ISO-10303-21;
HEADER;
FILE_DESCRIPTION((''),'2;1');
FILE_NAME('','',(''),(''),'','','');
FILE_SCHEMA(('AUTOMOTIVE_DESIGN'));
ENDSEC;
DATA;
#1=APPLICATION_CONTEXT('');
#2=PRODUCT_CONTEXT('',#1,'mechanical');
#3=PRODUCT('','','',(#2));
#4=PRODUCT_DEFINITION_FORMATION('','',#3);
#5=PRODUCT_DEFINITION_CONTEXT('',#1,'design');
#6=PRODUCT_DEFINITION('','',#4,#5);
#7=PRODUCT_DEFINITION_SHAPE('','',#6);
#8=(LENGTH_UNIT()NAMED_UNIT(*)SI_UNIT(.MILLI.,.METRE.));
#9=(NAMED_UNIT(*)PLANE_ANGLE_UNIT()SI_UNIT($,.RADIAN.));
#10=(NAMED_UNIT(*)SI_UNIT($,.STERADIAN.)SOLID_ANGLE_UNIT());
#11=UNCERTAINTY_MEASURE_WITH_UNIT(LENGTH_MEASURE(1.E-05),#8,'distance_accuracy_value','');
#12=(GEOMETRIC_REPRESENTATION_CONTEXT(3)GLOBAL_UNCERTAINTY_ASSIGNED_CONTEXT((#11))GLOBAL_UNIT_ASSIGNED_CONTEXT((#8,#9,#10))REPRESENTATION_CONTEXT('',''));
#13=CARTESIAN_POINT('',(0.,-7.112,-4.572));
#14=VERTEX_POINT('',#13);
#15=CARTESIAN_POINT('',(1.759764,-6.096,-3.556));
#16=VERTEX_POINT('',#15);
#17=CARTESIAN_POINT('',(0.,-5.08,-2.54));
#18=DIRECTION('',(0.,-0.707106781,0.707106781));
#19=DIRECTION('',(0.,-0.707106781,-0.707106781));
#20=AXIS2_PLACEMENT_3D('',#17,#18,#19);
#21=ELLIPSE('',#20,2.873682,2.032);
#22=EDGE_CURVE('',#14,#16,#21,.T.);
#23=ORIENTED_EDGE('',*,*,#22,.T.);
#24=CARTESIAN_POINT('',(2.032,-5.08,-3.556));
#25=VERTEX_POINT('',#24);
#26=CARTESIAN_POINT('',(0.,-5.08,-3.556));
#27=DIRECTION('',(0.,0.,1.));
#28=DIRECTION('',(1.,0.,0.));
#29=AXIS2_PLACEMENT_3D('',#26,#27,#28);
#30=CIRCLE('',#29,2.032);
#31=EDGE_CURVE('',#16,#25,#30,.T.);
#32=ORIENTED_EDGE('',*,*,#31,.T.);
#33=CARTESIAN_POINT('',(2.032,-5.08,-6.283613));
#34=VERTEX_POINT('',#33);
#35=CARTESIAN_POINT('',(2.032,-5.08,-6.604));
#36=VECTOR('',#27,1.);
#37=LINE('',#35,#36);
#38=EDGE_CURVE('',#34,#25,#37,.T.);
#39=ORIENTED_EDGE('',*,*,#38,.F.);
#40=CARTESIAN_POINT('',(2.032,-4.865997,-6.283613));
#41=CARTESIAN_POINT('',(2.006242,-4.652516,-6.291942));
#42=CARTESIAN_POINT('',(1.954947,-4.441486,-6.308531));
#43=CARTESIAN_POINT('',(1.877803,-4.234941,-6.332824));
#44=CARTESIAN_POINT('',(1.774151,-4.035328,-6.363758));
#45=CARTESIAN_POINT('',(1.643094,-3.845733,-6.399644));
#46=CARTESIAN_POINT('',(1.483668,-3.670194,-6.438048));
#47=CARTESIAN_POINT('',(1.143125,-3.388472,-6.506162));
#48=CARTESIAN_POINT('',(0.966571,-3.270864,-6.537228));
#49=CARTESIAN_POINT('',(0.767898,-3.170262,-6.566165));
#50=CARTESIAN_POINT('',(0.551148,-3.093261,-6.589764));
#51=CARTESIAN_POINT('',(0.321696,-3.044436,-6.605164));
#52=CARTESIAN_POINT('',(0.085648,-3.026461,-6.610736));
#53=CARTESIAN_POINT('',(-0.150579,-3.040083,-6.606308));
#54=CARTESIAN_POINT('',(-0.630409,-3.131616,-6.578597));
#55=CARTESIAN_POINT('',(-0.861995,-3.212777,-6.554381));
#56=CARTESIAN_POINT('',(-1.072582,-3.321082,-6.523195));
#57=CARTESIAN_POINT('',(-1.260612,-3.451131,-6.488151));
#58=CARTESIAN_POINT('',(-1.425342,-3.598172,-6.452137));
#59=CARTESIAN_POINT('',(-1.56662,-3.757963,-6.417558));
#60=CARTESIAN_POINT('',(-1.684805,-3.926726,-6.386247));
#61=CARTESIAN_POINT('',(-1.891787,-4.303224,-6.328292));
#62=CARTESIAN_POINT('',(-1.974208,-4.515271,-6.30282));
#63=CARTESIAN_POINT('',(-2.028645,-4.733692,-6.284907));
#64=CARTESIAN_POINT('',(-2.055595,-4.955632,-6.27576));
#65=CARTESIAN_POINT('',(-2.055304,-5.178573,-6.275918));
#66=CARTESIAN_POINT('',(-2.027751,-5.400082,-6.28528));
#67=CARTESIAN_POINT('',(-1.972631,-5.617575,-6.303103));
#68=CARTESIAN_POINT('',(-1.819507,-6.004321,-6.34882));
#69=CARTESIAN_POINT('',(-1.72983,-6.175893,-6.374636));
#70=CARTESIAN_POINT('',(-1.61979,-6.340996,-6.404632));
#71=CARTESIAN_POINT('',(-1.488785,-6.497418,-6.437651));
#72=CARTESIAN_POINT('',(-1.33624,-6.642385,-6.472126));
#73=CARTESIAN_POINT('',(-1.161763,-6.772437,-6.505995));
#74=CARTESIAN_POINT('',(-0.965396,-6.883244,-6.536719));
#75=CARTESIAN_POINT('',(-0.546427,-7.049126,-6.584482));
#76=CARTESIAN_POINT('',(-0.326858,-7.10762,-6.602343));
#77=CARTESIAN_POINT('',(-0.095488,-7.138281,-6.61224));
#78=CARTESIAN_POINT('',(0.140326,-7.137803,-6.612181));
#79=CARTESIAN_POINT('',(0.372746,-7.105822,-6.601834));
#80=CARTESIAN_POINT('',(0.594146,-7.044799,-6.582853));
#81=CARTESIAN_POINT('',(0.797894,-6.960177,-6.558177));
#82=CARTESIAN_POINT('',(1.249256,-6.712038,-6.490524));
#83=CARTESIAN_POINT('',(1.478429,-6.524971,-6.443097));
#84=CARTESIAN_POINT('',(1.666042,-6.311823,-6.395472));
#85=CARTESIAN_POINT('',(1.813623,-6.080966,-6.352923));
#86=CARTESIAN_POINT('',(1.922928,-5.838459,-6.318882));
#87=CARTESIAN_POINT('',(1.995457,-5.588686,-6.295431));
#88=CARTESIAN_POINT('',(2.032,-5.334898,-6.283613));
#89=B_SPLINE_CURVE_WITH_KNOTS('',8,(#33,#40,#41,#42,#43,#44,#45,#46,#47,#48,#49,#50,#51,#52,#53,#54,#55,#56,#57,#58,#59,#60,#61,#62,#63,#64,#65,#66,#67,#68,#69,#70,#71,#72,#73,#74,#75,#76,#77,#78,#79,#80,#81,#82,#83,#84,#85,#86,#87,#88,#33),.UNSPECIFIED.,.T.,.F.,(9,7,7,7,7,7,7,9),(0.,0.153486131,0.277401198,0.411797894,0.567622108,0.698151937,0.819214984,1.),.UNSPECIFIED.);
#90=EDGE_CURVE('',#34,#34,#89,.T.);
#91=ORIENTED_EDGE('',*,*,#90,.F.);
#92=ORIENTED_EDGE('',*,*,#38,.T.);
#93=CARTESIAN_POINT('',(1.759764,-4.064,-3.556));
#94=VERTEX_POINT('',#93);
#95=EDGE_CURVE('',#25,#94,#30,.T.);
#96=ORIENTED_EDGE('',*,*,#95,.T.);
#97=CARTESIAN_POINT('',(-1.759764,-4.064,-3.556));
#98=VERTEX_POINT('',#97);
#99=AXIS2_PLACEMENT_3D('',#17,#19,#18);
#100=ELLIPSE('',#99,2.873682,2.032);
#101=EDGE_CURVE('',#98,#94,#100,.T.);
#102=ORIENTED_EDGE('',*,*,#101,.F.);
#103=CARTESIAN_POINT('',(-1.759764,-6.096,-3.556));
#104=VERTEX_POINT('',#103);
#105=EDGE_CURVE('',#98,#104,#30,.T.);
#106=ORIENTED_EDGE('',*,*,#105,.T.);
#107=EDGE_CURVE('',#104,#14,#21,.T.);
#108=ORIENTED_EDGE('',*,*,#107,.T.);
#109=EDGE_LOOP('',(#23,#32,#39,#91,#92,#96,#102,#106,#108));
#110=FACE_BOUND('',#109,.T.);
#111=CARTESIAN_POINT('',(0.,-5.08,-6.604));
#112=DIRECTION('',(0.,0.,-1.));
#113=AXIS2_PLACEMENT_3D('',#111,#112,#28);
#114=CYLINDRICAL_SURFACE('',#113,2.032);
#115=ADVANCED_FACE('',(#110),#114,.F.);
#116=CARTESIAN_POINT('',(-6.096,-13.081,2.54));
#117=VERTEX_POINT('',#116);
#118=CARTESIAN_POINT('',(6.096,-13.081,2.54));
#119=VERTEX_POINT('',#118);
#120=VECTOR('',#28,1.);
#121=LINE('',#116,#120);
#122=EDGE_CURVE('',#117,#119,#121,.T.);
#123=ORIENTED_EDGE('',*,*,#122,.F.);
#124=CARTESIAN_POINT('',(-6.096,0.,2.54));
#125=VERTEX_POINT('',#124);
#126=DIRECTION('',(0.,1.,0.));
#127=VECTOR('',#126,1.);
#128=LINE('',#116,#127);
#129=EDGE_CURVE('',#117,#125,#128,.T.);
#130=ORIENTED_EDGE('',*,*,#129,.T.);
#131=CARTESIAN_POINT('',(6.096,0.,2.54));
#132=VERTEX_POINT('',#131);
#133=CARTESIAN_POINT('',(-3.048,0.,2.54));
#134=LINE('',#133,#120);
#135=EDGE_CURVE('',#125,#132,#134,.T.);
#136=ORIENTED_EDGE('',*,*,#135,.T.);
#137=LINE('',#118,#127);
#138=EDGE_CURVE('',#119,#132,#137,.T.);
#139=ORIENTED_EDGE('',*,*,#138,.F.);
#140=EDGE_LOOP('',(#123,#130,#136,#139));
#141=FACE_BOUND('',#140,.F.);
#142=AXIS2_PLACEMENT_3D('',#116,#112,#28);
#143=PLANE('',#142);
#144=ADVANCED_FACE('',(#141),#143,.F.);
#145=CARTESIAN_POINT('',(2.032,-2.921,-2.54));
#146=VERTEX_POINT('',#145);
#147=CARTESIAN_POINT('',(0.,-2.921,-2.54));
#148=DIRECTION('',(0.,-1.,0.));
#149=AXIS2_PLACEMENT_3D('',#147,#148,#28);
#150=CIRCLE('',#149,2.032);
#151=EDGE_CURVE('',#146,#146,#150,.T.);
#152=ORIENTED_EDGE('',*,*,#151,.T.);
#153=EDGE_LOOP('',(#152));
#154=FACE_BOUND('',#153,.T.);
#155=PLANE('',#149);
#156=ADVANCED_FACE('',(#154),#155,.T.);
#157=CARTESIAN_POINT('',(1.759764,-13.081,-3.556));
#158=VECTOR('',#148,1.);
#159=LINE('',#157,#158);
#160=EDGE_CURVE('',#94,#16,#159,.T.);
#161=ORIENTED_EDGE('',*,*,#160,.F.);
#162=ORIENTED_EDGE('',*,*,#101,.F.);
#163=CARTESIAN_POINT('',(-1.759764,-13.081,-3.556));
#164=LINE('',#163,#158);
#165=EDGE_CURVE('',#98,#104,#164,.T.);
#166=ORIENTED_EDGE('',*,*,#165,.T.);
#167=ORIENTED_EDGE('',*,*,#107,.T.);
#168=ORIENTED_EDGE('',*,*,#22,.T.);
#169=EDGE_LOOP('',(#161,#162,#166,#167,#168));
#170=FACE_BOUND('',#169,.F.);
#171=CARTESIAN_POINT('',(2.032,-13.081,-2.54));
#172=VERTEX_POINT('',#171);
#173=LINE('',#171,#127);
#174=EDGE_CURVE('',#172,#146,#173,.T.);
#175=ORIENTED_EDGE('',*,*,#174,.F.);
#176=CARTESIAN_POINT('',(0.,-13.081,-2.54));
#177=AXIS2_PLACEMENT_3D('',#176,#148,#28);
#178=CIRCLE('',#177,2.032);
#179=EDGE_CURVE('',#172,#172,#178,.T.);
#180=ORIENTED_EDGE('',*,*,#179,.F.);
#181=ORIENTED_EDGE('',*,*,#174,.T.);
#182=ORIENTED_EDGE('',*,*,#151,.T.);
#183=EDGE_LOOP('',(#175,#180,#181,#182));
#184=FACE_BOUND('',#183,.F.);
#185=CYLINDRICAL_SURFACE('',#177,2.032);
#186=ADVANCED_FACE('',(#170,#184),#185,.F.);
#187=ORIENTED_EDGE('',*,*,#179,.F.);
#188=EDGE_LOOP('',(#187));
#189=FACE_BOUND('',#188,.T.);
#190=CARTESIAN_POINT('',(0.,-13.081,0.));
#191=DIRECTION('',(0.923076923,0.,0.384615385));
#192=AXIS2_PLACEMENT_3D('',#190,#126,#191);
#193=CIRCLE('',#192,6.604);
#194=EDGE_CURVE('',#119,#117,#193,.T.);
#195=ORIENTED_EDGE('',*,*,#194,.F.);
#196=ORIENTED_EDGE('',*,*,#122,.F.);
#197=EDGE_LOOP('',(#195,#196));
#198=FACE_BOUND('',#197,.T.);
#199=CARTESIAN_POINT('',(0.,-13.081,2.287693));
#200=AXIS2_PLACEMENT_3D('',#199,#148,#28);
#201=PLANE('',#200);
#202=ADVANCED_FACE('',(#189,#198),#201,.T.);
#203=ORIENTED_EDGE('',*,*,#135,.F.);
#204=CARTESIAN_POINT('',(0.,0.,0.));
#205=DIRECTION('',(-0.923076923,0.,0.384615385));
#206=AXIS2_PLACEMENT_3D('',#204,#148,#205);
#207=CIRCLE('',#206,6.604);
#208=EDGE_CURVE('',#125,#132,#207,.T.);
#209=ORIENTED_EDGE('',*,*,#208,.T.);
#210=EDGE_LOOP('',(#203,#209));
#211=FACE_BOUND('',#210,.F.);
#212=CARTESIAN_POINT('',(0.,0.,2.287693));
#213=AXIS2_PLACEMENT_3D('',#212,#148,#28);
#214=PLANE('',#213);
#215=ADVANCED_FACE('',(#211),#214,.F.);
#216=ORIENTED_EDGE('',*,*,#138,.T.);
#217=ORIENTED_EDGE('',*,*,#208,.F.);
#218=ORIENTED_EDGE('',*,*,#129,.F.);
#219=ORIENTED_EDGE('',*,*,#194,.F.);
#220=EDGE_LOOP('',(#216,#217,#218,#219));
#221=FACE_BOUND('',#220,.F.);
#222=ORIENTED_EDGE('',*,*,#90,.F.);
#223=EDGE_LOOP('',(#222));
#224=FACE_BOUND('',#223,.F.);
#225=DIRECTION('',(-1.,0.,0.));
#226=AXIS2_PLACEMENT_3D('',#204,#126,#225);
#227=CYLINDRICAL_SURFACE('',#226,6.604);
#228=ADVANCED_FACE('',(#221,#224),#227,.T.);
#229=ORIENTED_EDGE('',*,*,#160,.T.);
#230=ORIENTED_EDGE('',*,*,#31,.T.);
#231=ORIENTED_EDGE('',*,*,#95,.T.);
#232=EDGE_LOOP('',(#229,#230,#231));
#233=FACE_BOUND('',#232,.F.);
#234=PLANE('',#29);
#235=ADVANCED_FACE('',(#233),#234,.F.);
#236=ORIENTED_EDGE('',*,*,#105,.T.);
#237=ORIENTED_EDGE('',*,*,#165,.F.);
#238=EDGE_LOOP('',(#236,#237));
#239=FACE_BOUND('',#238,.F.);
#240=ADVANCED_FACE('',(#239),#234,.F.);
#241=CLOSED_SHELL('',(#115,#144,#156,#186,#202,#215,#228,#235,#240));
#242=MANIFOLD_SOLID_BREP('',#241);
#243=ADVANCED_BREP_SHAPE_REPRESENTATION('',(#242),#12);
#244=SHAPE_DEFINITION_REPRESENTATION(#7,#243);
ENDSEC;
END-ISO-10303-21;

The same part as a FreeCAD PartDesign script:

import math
import FreeCAD as App
import Part
import Sketcher
from FreeCAD import Vector
Q = App.Units.Quantity

doc = App.newDocument("Part")
params = doc.addObject("Spreadsheet::Sheet", "Params")
for row, (alias, value) in enumerate([
    ("sketch1_diameter", "0.52 in"),
    ("pad1_length", "0.515 in"),
    ("sketch2_diameter", "0.16 in"),
    ("pocket1_length", "0.4 in"),
    ("sketch3_radius", "0.26 in"),
    ("sketch3_width", "0.48 in"),
    ("sketch4_diameter", "0.16 in"),
    ("pocket3_length", "0.12 in"),
], start=1):
    params.set(f"A{row}", alias)
    params.set(f"B{row}", "=" + value)
    params.setAlias(f"B{row}", alias)

body = doc.addObject("PartDesign::Body", "Body")

sketch1 = body.newObject("Sketcher::SketchObject", "Sketch")
sketch1.AttachmentSupport = (doc.getObject("XZ_Plane"), [""])
sketch1.MapMode = "FlatFace"
sketch1.addGeometry(Part.Circle(Vector(0, 0, 0), Vector(0, 0, 1), 6.604), False)
sketch1.addConstraint(Sketcher.Constraint("Coincident", 0, 3, -1, 1))
sketch1.addConstraint(Sketcher.Constraint("Diameter", 0, Q("0.52 in")))
sketch1.setExpression("Constraints[1]", "Params.sketch1_diameter")
pad1 = body.newObject("PartDesign::Pad", "Pad")
pad1.Profile = sketch1
pad1.setExpression("Length", "Params.pad1_length")

sketch2 = body.newObject("Sketcher::SketchObject", "Sketch001")
sketch2.AttachmentSupport = (doc.getObject("XZ_Plane"), [""])
sketch2.MapMode = "FlatFace"
sketch2.AttachmentOffset = App.Placement(Vector(0, 0, 0.515 * 25.4), App.Rotation())
sketch2.addGeometry(Part.Circle(Vector(0, -2.54, 0), Vector(0, 0, 1), 2.032), False)
sketch2.addConstraint(Sketcher.Constraint("PointOnObject", 0, 3, -2))
sketch2.addConstraint(Sketcher.Constraint("Diameter", 0, Q("0.16 in")))
sketch2.addConstraint(Sketcher.Constraint("DistanceY", 0, 3, -1, 1, Q("0.1 in")))
sketch2.setExpression("Constraints[1]", "Params.sketch2_diameter")
pocket1 = body.newObject("PartDesign::Pocket", "Pocket")
pocket1.Profile = sketch2
pocket1.setExpression("Length", "Params.pocket1_length")

sketch3 = body.newObject("Sketcher::SketchObject", "Sketch002")
sketch3.AttachmentSupport = (doc.getObject("XZ_Plane"), [""])
sketch3.MapMode = "FlatFace"
sketch3.AttachmentOffset = App.Placement(Vector(0, 0, 0.515 * 25.4), App.Rotation())
sketch3.addGeometry(Part.ArcOfCircle(Part.Circle(Vector(0, 0, 0), Vector(0, 0, 1), 6.604), math.radians(22.619865), math.radians(157.380135)), False)
sketch3.addGeometry(Part.LineSegment(Vector(-6.096, 2.54, 0), Vector(6.096, 2.54, 0)), False)
sketch3.addConstraint(Sketcher.Constraint("Coincident", 0, 1, 1, 2))
sketch3.addConstraint(Sketcher.Constraint("Coincident", 1, 1, 0, 2))
sketch3.addConstraint(Sketcher.Constraint("Horizontal", 1))
sketch3.addConstraint(Sketcher.Constraint("Coincident", 0, 3, -1, 1))
sketch3.addConstraint(Sketcher.Constraint("Radius", 0, Q("0.26 in")))
sketch3.addConstraint(Sketcher.Constraint("DistanceX", 1, 1, 1, 2, Q("0.48 in")))
sketch3.setExpression("Constraints[4]", "Params.sketch3_radius")
sketch3.setExpression("Constraints[5]", "Params.sketch3_width")
pocket2 = body.newObject("PartDesign::Pocket", "Pocket001")
pocket2.Profile = sketch3
pocket2.Type = "ThroughAll"

sketch4 = body.newObject("Sketcher::SketchObject", "Sketch003")
sketch4.AttachmentSupport = (doc.getObject("XY_Plane"), [""])
sketch4.MapMode = "FlatFace"
sketch4.AttachmentOffset = App.Placement(Vector(0, 0, -0.26 * 25.4), App.Rotation())
sketch4.addGeometry(Part.Circle(Vector(0, -5.08, 0), Vector(0, 0, 1), 2.032), False)
sketch4.addConstraint(Sketcher.Constraint("PointOnObject", 0, 3, -2))
sketch4.addConstraint(Sketcher.Constraint("Diameter", 0, Q("0.16 in")))
sketch4.addConstraint(Sketcher.Constraint("DistanceY", 0, 3, -1, 1, Q("0.2 in")))
sketch4.setExpression("Constraints[1]", "Params.sketch4_diameter")
pocket3 = body.newObject("PartDesign::Pocket", "Pocket002")
pocket3.Profile = sketch4
pocket3.setExpression("Length", "Params.pocket3_length")
pocket3.Reversed = True

doc.recompute()
